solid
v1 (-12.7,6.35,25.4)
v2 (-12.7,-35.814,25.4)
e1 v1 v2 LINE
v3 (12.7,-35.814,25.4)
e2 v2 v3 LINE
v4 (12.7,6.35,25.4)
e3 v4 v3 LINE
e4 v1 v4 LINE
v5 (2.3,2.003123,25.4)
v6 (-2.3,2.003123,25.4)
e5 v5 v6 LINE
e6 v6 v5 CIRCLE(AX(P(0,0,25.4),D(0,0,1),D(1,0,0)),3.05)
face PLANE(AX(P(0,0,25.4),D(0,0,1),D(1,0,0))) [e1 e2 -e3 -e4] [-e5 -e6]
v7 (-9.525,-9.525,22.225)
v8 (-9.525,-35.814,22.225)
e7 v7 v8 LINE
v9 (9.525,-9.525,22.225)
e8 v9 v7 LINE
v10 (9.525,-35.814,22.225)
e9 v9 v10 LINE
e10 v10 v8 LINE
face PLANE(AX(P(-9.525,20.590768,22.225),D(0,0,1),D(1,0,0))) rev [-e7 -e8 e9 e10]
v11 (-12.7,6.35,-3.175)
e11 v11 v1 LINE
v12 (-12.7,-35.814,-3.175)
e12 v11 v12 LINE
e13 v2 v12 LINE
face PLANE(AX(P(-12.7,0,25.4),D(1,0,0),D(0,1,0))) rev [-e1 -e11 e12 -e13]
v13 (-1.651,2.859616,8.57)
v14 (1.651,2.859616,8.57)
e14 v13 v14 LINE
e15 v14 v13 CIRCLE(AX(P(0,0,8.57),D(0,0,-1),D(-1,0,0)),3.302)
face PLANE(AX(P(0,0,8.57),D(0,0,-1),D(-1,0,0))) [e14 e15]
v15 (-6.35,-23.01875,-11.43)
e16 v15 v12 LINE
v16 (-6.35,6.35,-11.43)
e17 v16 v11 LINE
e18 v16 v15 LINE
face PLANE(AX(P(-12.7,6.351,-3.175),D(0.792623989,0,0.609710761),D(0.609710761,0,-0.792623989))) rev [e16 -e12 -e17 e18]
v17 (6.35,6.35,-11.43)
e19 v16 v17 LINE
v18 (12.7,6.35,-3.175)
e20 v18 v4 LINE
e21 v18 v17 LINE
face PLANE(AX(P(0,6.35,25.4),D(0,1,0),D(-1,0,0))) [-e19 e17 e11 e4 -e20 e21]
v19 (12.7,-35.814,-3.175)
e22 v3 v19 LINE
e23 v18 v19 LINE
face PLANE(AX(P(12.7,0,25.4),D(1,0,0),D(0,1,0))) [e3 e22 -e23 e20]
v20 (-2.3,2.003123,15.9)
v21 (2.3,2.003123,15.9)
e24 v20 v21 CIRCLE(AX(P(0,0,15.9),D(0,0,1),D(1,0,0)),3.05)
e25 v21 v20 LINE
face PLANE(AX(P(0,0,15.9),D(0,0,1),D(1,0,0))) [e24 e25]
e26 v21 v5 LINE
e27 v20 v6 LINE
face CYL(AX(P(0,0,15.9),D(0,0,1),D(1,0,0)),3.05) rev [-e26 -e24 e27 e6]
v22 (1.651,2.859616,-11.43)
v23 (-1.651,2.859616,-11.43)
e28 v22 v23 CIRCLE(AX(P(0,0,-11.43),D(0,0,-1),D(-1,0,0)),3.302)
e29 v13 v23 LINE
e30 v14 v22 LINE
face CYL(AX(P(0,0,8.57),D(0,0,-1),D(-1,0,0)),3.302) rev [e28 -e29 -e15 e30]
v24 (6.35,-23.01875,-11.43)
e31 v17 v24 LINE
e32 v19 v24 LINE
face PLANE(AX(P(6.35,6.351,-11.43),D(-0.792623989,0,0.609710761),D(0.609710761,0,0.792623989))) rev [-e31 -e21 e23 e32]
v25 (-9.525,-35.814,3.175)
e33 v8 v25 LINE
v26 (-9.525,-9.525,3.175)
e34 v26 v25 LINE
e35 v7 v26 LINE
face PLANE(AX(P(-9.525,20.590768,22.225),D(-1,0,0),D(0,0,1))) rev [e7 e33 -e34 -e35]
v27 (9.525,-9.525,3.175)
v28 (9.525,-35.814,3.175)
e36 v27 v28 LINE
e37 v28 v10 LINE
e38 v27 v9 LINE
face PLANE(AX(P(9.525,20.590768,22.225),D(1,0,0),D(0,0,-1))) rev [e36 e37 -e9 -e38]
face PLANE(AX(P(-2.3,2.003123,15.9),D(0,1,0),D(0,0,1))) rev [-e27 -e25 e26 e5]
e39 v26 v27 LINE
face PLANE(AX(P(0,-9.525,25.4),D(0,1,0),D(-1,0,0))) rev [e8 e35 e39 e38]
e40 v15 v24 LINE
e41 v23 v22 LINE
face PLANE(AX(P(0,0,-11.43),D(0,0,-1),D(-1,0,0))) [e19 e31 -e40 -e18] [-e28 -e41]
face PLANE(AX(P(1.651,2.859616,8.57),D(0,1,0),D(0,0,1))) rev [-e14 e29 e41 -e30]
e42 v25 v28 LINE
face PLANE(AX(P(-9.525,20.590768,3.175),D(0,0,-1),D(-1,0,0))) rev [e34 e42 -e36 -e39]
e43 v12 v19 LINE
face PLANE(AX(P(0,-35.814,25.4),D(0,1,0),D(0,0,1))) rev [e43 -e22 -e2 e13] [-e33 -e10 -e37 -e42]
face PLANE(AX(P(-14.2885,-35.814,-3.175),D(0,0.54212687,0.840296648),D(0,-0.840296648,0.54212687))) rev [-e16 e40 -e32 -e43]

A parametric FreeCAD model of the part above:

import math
import FreeCAD as App
import Part
import Sketcher
Q = App.Units.Quantity

doc = App.newDocument("Part")
body = doc.addObject("PartDesign::Body", "Body")

sketch1 = body.newObject("Sketcher::SketchObject", "Sketch")
sketch1.AttachmentSupport = (doc.getObject("XY_Plane"), [""])
sketch1.MapMode = "FlatFace"
sketch1.addGeometry(Part.LineSegment(App.Vector(12.7, -6.3, 0), App.Vector(14.3, -6.3, 0)), False)
sketch1.addGeometry(Part.LineSegment(App.Vector(14.3, -6.3, 0), App.Vector(14.3, 6.3, 0)), False)
sketch1.addGeometry(Part.LineSegment(App.Vector(14.3, 6.3, 0), App.Vector(-14.3, 6.3, 0)), False)
sketch1.addGeometry(Part.LineSegment(App.Vector(-14.3, 6.3, 0), App.Vector(-14.3, -6.3, 0)), False)
sketch1.addGeometry(Part.LineSegment(App.Vector(-14.3, -6.3, 0), App.Vector(-12.7, -6.3, 0)), False)
sketch1.addGeometry(Part.LineSegment(App.Vector(-12.7, -6.3, 0), App.Vector(-12.7, -35.8, 0)), False)
sketch1.addGeometry(Part.LineSegment(App.Vector(-12.7, -35.8, 0), App.Vector(12.7, -35.8, 0)), False)
sketch1.addGeometry(Part.LineSegment(App.Vector(12.7, -35.8, 0), App.Vector(12.7, -6.3, 0)), False)
sketch1.addConstraint(Sketcher.Constraint("Coincident", 0, 2, 1, 1))
sketch1.addConstraint(Sketcher.Constraint("Coincident", 1, 2, 2, 1))
sketch1.addConstraint(Sketcher.Constraint("Coincident", 2, 2, 3, 1))
sketch1.addConstraint(Sketcher.Constraint("Coincident", 3, 2, 4, 1))
sketch1.addConstraint(Sketcher.Constraint("Coincident", 4, 2, 5, 1))
sketch1.addConstraint(Sketcher.Constraint("Coincident", 5, 2, 6, 1))
sketch1.addConstraint(Sketcher.Constraint("Coincident", 6, 2, 7, 1))
sketch1.addConstraint(Sketcher.Constraint("Coincident", 7, 2, 0, 1))
sketch1.addConstraint(Sketcher.Constraint("Horizontal", 0))
sketch1.addConstraint(Sketcher.Constraint("Vertical", 1))
sketch1.addConstraint(Sketcher.Constraint("Horizontal", 2))
sketch1.addConstraint(Sketcher.Constraint("Vertical", 3))
sketch1.addConstraint(Sketcher.Constraint("Horizontal", 4))
sketch1.addConstraint(Sketcher.Constraint("Vertical", 5))
sketch1.addConstraint(Sketcher.Constraint("Horizontal", 6))
sketch1.addConstraint(Sketcher.Constraint("Vertical", 7))
sketch1.addConstraint(Sketcher.Constraint("Symmetric", 0, 2, 2, 2, -1, 1))
sketch1.addConstraint(Sketcher.Constraint("Symmetric", 4, 2, 7, 2, -2))
sketch1.addConstraint(Sketcher.Constraint("DistanceX", 6, 1, 6, 2, Q("1 in")))
sketch1.addConstraint(Sketcher.Constraint("DistanceY", 1, 1, 1, 2, Q("0.5 in")))
sketch1.addConstraint(Sketcher.Constraint("DistanceY", 5, 2, 5, 1, Q("1.16 in")))
sketch1.addConstraint(Sketcher.Constraint("DistanceX", 0, 1, 0, 2, Q("0.0625 in")))
pad1 = body.newObject("PartDesign::Pad", "Pad")
pad1.Profile = sketch1
pad1.Length = Q("1 in")

sketch2 = body.newObject("Sketcher::SketchObject", "Sketch001")
sketch2.AttachmentSupport = (doc.getObject("XY_Plane"), [""])
sketch2.MapMode = "FlatFace"
sketch2.AttachmentOffset = App.Placement(App.Vector(0, 0, 1 * 25.4), App.Rotation())
sketch2.addGeometry(Part.LineSegment(App.Vector(2.3, 2, 0), App.Vector(-2.3, 2, 0)), False)
sketch2.addGeometry(Part.ArcOfCircle(Part.Circle(App.Vector(0, 0, 0), App.Vector(0, 0, 1), 3), math.radians(139), math.radians(401)), False)
sketch2.addConstraint(Sketcher.Constraint("Coincident", 0, 1, 1, 2))
sketch2.addConstraint(Sketcher.Constraint("Coincident", 1, 1, 0, 2))
sketch2.addConstraint(Sketcher.Constraint("Horizontal", 0))
sketch2.addConstraint(Sketcher.Constraint("Coincident", 1, 3, -1, 1))
sketch2.addConstraint(Sketcher.Constraint("Radius", 1, 3.05))
sketch2.addConstraint(Sketcher.Constraint("DistanceX", 0, 2, 0, 1, 4.6))
pocket1 = body.newObject("PartDesign::Pocket", "Pocket")
pocket1.Profile = sketch2
pocket1.Length = 9.5

sketch3 = body.newObject("Sketcher::SketchObject", "Sketch002")
sketch3.AttachmentSupport = (doc.getObject("XY_Plane"), [""])
sketch3.MapMode = "FlatFace"
sketch3.addGeometry(Part.LineSegment(App.Vector(13, 6, 0), App.Vector(13, -36, 0)), False)
sketch3.addGeometry(Part.LineSegment(App.Vector(13, -36, 0), App.Vector(-13, -36, 0)), False)
sketch3.addGeometry(Part.LineSegment(App.Vector(-13, -36, 0), App.Vector(-13, 6, 0)), False)
sketch3.addGeometry(Part.LineSegment(App.Vector(-13, 6, 0), App.Vector(13, 6, 0)), False)
sketch3.addConstraint(Sketcher.Constraint("Coincident", 0, 2, 1, 1))
sketch3.addConstraint(Sketcher.Constraint("Coincident", 1, 2, 2, 1))
sketch3.addConstraint(Sketcher.Constraint("Coincident", 2, 2, 3, 1))
sketch3.addConstraint(Sketcher.Constraint("Coincident", 3, 2, 0, 1))
sketch3.addConstraint(Sketcher.Constraint("Vertical", 0))
sketch3.addConstraint(Sketcher.Constraint("Horizontal", 1))
sketch3.addConstraint(Sketcher.Constraint("Vertical", 2))
sketch3.addConstraint(Sketcher.Constraint("Horizontal", 3))
sketch3.addConstraint(Sketcher.Constraint("DistanceX", 1, 2, 1, 1, Q("1 in")))
sketch3.addConstraint(Sketcher.Constraint("DistanceY", 0, 2, 0, 1, Q("1.66 in")))
sketch3.addConstraint(Sketcher.Constraint("DistanceX", -1, 1, 0, 2, Q("0.5 in")))
sketch3.addConstraint(Sketcher.Constraint("DistanceY", 0, 2, -1, 1, Q("1.41 in")))
pad2 = body.newObject("PartDesign::Pad", "Pad001")
pad2.Profile = sketch3
pad2.Length = Q("0.45 in")
pad2.Reversed = True

sketch4 = body.newObject("Sketcher::SketchObject", "Sketch003")
sketch4.AttachmentSupport = (doc.getObject("YZ_Plane"), [""])
sketch4.MapMode = "FlatFace"
sketch4.AttachmentOffset = App.Placement(App.Vector(0, 0, 0.5 * 25.4), App.Rotation())
sketch4.addGeometry(Part.LineSegment(App.Vector(-23, -11, 0), App.Vector(-36, -3, 0)), False)
sketch4.addGeometry(Part.LineSegment(App.Vector(-36, -3, 0), App.Vector(-36, -11, 0)), False)
sketch4.addGeometry(Part.LineSegment(App.Vector(-36, -11, 0), App.Vector(-23, -11, 0)), False)
sketch4.addConstraint(Sketcher.Constraint("Coincident", 0, 2, 1, 1))
sketch4.addConstraint(Sketcher.Constraint("Coincident", 1, 2, 2, 1))
sketch4.addConstraint(Sketcher.Constraint("Coincident", 2, 2, 0, 1))
sketch4.addConstraint(Sketcher.Constraint("Vertical", 1))
sketch4.addConstraint(Sketcher.Constraint("Horizontal", 2))
sketch4.addConstraint(Sketcher.Constraint("DistanceY", 1, 2, 1, 1, Q("0.325 in")))
sketch4.addConstraint(Sketcher.Constraint("DistanceX", 0, 2, -1, 1, Q("1.41 in")))
sketch4.addConstraint(Sketcher.Constraint("DistanceY", 1, 2, -1, 1, Q("0.45 in")))
sketch4.addConstraint(Sketcher.Constraint("DistanceX", 2, 2, -1, 1, Q("0.90625 in")))
pocket2 = body.newObject("PartDesign::Pocket", "Pocket001")
pocket2.Profile = sketch4
pocket2.Type = "UpToFirst"

sketch5 = body.newObject("Sketcher::SketchObject", "Sketch004")
sketch5.AttachmentSupport = (doc.getObject("XZ_Plane"), [""])
sketch5.MapMode = "FlatFace"
sketch5.AttachmentOffset = App.Placement(App.Vector(0, 0, 1.41 * 25.4), App.Rotation())
sketch5.addGeometry(Part.LineSegment(App.Vector(-13, -3, 0), App.Vector(-13, -11, 0)), False)
sketch5.addGeometry(Part.LineSegment(App.Vector(-13, -11, 0), App.Vector(-6, -11, 0)), False)
sketch5.addGeometry(Part.LineSegment(App.Vector(-6, -11, 0), App.Vector(-13, -3, 0)), False)
sketch5.addConstraint(Sketcher.Constraint("Coincident", 0, 2, 1, 1))
sketch5.addConstraint(Sketcher.Constraint("Coincident", 1, 2, 2, 1))
sketch5.addConstraint(Sketcher.Constraint("Coincident", 2, 2, 0, 1))
sketch5.addConstraint(Sketcher.Constraint("Vertical", 0))
sketch5.addConstraint(Sketcher.Constraint("Horizontal", 1))
sketch5.addConstraint(Sketcher.Constraint("DistanceX", 1, 1, 1, 2, Q("0.25 in")))
sketch5.addConstraint(Sketcher.Constraint("DistanceX", 0, 2, -1, 1, Q("0.5 in")))
sketch5.addConstraint(Sketcher.Constraint("DistanceY", 0, 2, 0, 1, Q("0.325 in")))
sketch5.addConstraint(Sketcher.Constraint("DistanceY", 0, 2, -1, 1, Q("0.45 in")))
pocket3 = body.newObject("PartDesign::Pocket", "Pocket002")
pocket3.Profile = sketch5
pocket3.Length = Q("1.66 in")

sketch6 = body.newObject("Sketcher::SketchObject", "Sketch005")
sketch6.AttachmentSupport = (doc.getObject("XZ_Plane"), [""])
sketch6.MapMode = "FlatFace"
sketch6.AttachmentOffset = App.Placement(App.Vector(0, 0, 1.41 * 25.4), App.Rotation())
sketch6.addGeometry(Part.LineSegment(App.Vector(13, -3, 0), App.Vector(6, -11, 0)), False)
sketch6.addGeometry(Part.LineSegment(App.Vector(6, -11, 0), App.Vector(13, -11, 0)), False)
sketch6.addGeometry(Part.LineSegment(App.Vector(13, -11, 0), App.Vector(13, -3, 0)), False)
sketch6.addConstraint(Sketcher.Constraint("Coincident", 0, 2, 1, 1))
sketch6.addConstraint(Sketcher.Constraint("Coincident", 1, 2, 2, 1))
sketch6.addConstraint(Sketcher.Constraint("Coincident", 2, 2, 0, 1))
sketch6.addConstraint(Sketcher.Constraint("Horizontal", 1))
sketch6.addConstraint(Sketcher.Constraint("Vertical", 2))
sketch6.addConstraint(Sketcher.Constraint("DistanceX", 1, 1, 1, 2, Q("0.25 in")))
sketch6.addConstraint(Sketcher.Constraint("DistanceX", -1, 1, 1, 2, Q("0.5 in")))
sketch6.addConstraint(Sketcher.Constraint("DistanceY", 2, 1, 2, 2, Q("0.325 in")))
sketch6.addConstraint(Sketcher.Constraint("DistanceY", 0, 2, -1, 1, Q("0.45 in")))
pocket4 = body.newObject("PartDesign::Pocket", "Pocket003")
pocket4.Profile = sketch6
pocket4.Length = Q("1.66 in")

sketch7 = body.newObject("Sketcher::SketchObject", "Sketch006")
sketch7.AttachmentSupport = (doc.getObject("XY_Plane"), [""])
sketch7.MapMode = "FlatFace"
sketch7.AttachmentOffset = App.Placement(App.Vector(0, 0, -0.45 * 25.4), App.Rotation())
sketch7.addGeometry(Part.LineSegment(App.Vector(-1.7, 2.9, 0), App.Vector(1.7, 2.9, 0)), False)
sketch7.addGeometry(Part.ArcOfCircle(Part.Circle(App.Vector(0, 0, 0), App.Vector(0, 0, 1), 3.3), math.radians(120), math.radians(420)), False)
sketch7.addConstraint(Sketcher.Constraint("Coincident", 0, 1, 1, 1))
sketch7.addConstraint(Sketcher.Constraint("Coincident", 1, 2, 0, 2))
sketch7.addConstraint(Sketcher.Constraint("Horizontal", 0))
sketch7.addConstraint(Sketcher.Constraint("Coincident", 1, 3, -1, 1))
sketch7.addConstraint(Sketcher.Constraint("Radius", 1, Q("0.13 in")))
sketch7.addConstraint(Sketcher.Constraint("DistanceX", 0, 1, 0, 2, Q("0.13 in")))
pocket5 = body.newObject("PartDesign::Pocket", "Pocket004")
pocket5.Profile = sketch7
pocket5.Length = 20
pocket5.Reversed = True

sketch8 = body.newObject("Sketcher::SketchObject", "Sketch007")
sketch8.AttachmentSupport = (doc.getObject("XZ_Plane"), [""])
sketch8.MapMode = "FlatFace"
sketch8.AttachmentOffset = App.Placement(App.Vector(0, 0, 1.41 * 25.4), App.Rotation())
sketch8.addGeometry(Part.LineSegment(App.Vector(-10, 22, 0), App.Vector(-10, 3, 0)), False)
sketch8.addGeometry(Part.LineSegment(App.Vector(-10, 3, 0), App.Vector(10, 3, 0)), False)
sketch8.addGeometry(Part.LineSegment(App.Vector(10, 3, 0), App.Vector(10, 22, 0)), False)
sketch8.addGeometry(Part.LineSegment(App.Vector(10, 22, 0), App.Vector(-10, 22, 0)), False)
sketch8.addConstraint(Sketcher.Constraint("Coincident", 0, 2, 1, 1))
sketch8.addConstraint(Sketcher.Constraint("Coincident", 1, 2, 2, 1))
sketch8.addConstraint(Sketcher.Constraint("Coincident", 2, 2, 3, 1))
sketch8.addConstraint(Sketcher.Constraint("Coincident", 3, 2, 0, 1))
sketch8.addConstraint(Sketcher.Constraint("Vertical", 0))
sketch8.addConstraint(Sketcher.Constraint("Horizontal", 1))
sketch8.addConstraint(Sketcher.Constraint("Vertical", 2))
sketch8.addConstraint(Sketcher.Constraint("Horizontal", 3))
sketch8.addConstraint(Sketcher.Constraint("Equal", 3, 0))
sketch8.addConstraint(Sketcher.Constraint("DistanceX", 1, 1, 1, 2, Q("0.75 in")))
sketch8.addConstraint(Sketcher.Constraint("DistanceX", 0, 2, -1, 1, Q("0.375 in")))
sketch8.addConstraint(Sketcher.Constraint("DistanceY", -1, 1, 0, 2, Q("0.125 in")))
pocket6 = body.newObject("PartDesign::Pocket", "Pocket005")
pocket6.Profile = sketch8
pocket6.Length = Q("1.035 in")

sketch9 = body.newObject("Sketcher::SketchObject", "Sketch008")
sketch9.AttachmentSupport = (doc.getObject("XY_Plane"), [""])
sketch9.MapMode = "FlatFace"
sketch9.AttachmentOffset = App.Placement(App.Vector(0, 0, 1 * 25.4), App.Rotation())
sketch9.addGeometry(Part.LineSegment(App.Vector(-14.3, 6.3, 0), App.Vector(-14.3, -6.3, 0)), False)
sketch9.addGeometry(Part.LineSegment(App.Vector(-14.3, -6.3, 0), App.Vector(-12.7, -6.3, 0)), False)
sketch9.addGeometry(Part.LineSegment(App.Vector(-12.7, -6.3, 0), App.Vector(-12.7, 6.3, 0)), False)
sketch9.addGeometry(Part.LineSegment(App.Vector(-12.7, 6.3, 0), App.Vector(-14.3, 6.3, 0)), False)
sketch9.addConstraint(Sketcher.Constraint("Coincident", 0, 2, 1, 1))
sketch9.addConstraint(Sketcher.Constraint("Coincident", 1, 2, 2, 1))
sketch9.addConstraint(Sketcher.Constraint("Coincident", 2, 2, 3, 1))
sketch9.addConstraint(Sketcher.Constraint("Coincident", 3, 2, 0, 1))
sketch9.addConstraint(Sketcher.Constraint("Vertical", 0))
sketch9.addConstraint(Sketcher.Constraint("Horizontal", 1))
sketch9.addConstraint(Sketcher.Constraint("Vertical", 2))
sketch9.addConstraint(Sketcher.Constraint("Horizontal", 3))
sketch9.addConstraint(Sketcher.Constraint("DistanceY", 0, 2, 0, 1, Q("0.5 in")))
sketch9.addConstraint(Sketcher.Constraint("DistanceX", 1, 2, -1, 1, Q("0.5 in")))
sketch9.addConstraint(Sketcher.Constraint("DistanceX", 1, 1, 1, 2, Q("0.0625 in")))
sketch9.addConstraint(Sketcher.Constraint("DistanceY", 0, 2, -1, 1, Q("0.25 in")))
pocket7 = body.newObject("PartDesign::Pocket", "Pocket006")
pocket7.Profile = sketch9
pocket7.Type = "UpToFirst"

sketch10 = body.newObject("Sketcher::SketchObject", "Sketch009")
sketch10.AttachmentSupport = (doc.getObject("XY_Plane"), [""])
sketch10.MapMode = "FlatFace"
sketch10.AttachmentOffset = App.Placement(App.Vector(0, 0, 1 * 25.4), App.Rotation())
sketch10.addGeometry(Part.LineSegment(App.Vector(12.7, 6.3, 0), App.Vector(12.7, -6.3, 0)), False)
sketch10.addGeometry(Part.LineSegment(App.Vector(12.7, -6.3, 0), App.Vector(14.3, -6.3, 0)), False)
sketch10.addGeometry(Part.LineSegment(App.Vector(14.3, -6.3, 0), App.Vector(14.3, 6.3, 0)), False)
sketch10.addGeometry(Part.LineSegment(App.Vector(14.3, 6.3, 0), App.Vector(12.7, 6.3, 0)), False)
sketch10.addConstraint(Sketcher.Constraint("Coincident", 0, 2, 1, 1))
sketch10.addConstraint(Sketcher.Constraint("Coincident", 1, 2, 2, 1))
sketch10.addConstraint(Sketcher.Constraint("Coincident", 2, 2, 3, 1))
sketch10.addConstraint(Sketcher.Constraint("Coincident", 3, 2, 0, 1))
sketch10.addConstraint(Sketcher.Constraint("Vertical", 0))
sketch10.addConstraint(Sketcher.Constraint("Horizontal", 1))
sketch10.addConstraint(Sketcher.Constraint("Vertical", 2))
sketch10.addConstraint(Sketcher.Constraint("Horizontal", 3))
sketch10.addConstraint(Sketcher.Constraint("DistanceY", 0, 2, 0, 1, Q("0.5 in")))
sketch10.addConstraint(Sketcher.Constraint("DistanceX", -1, 1, 0, 2, Q("0.5 in")))
sketch10.addConstraint(Sketcher.Constraint("DistanceX", 1, 1, 1, 2, Q("0.0625 in")))
sketch10.addConstraint(Sketcher.Constraint("DistanceY", 0, 2, -1, 1, Q("0.25 in")))
pocket8 = body.newObject("PartDesign::Pocket", "Pocket007")
pocket8.Profile = sketch10
pocket8.Type = "UpToFirst"

doc.recompute()
